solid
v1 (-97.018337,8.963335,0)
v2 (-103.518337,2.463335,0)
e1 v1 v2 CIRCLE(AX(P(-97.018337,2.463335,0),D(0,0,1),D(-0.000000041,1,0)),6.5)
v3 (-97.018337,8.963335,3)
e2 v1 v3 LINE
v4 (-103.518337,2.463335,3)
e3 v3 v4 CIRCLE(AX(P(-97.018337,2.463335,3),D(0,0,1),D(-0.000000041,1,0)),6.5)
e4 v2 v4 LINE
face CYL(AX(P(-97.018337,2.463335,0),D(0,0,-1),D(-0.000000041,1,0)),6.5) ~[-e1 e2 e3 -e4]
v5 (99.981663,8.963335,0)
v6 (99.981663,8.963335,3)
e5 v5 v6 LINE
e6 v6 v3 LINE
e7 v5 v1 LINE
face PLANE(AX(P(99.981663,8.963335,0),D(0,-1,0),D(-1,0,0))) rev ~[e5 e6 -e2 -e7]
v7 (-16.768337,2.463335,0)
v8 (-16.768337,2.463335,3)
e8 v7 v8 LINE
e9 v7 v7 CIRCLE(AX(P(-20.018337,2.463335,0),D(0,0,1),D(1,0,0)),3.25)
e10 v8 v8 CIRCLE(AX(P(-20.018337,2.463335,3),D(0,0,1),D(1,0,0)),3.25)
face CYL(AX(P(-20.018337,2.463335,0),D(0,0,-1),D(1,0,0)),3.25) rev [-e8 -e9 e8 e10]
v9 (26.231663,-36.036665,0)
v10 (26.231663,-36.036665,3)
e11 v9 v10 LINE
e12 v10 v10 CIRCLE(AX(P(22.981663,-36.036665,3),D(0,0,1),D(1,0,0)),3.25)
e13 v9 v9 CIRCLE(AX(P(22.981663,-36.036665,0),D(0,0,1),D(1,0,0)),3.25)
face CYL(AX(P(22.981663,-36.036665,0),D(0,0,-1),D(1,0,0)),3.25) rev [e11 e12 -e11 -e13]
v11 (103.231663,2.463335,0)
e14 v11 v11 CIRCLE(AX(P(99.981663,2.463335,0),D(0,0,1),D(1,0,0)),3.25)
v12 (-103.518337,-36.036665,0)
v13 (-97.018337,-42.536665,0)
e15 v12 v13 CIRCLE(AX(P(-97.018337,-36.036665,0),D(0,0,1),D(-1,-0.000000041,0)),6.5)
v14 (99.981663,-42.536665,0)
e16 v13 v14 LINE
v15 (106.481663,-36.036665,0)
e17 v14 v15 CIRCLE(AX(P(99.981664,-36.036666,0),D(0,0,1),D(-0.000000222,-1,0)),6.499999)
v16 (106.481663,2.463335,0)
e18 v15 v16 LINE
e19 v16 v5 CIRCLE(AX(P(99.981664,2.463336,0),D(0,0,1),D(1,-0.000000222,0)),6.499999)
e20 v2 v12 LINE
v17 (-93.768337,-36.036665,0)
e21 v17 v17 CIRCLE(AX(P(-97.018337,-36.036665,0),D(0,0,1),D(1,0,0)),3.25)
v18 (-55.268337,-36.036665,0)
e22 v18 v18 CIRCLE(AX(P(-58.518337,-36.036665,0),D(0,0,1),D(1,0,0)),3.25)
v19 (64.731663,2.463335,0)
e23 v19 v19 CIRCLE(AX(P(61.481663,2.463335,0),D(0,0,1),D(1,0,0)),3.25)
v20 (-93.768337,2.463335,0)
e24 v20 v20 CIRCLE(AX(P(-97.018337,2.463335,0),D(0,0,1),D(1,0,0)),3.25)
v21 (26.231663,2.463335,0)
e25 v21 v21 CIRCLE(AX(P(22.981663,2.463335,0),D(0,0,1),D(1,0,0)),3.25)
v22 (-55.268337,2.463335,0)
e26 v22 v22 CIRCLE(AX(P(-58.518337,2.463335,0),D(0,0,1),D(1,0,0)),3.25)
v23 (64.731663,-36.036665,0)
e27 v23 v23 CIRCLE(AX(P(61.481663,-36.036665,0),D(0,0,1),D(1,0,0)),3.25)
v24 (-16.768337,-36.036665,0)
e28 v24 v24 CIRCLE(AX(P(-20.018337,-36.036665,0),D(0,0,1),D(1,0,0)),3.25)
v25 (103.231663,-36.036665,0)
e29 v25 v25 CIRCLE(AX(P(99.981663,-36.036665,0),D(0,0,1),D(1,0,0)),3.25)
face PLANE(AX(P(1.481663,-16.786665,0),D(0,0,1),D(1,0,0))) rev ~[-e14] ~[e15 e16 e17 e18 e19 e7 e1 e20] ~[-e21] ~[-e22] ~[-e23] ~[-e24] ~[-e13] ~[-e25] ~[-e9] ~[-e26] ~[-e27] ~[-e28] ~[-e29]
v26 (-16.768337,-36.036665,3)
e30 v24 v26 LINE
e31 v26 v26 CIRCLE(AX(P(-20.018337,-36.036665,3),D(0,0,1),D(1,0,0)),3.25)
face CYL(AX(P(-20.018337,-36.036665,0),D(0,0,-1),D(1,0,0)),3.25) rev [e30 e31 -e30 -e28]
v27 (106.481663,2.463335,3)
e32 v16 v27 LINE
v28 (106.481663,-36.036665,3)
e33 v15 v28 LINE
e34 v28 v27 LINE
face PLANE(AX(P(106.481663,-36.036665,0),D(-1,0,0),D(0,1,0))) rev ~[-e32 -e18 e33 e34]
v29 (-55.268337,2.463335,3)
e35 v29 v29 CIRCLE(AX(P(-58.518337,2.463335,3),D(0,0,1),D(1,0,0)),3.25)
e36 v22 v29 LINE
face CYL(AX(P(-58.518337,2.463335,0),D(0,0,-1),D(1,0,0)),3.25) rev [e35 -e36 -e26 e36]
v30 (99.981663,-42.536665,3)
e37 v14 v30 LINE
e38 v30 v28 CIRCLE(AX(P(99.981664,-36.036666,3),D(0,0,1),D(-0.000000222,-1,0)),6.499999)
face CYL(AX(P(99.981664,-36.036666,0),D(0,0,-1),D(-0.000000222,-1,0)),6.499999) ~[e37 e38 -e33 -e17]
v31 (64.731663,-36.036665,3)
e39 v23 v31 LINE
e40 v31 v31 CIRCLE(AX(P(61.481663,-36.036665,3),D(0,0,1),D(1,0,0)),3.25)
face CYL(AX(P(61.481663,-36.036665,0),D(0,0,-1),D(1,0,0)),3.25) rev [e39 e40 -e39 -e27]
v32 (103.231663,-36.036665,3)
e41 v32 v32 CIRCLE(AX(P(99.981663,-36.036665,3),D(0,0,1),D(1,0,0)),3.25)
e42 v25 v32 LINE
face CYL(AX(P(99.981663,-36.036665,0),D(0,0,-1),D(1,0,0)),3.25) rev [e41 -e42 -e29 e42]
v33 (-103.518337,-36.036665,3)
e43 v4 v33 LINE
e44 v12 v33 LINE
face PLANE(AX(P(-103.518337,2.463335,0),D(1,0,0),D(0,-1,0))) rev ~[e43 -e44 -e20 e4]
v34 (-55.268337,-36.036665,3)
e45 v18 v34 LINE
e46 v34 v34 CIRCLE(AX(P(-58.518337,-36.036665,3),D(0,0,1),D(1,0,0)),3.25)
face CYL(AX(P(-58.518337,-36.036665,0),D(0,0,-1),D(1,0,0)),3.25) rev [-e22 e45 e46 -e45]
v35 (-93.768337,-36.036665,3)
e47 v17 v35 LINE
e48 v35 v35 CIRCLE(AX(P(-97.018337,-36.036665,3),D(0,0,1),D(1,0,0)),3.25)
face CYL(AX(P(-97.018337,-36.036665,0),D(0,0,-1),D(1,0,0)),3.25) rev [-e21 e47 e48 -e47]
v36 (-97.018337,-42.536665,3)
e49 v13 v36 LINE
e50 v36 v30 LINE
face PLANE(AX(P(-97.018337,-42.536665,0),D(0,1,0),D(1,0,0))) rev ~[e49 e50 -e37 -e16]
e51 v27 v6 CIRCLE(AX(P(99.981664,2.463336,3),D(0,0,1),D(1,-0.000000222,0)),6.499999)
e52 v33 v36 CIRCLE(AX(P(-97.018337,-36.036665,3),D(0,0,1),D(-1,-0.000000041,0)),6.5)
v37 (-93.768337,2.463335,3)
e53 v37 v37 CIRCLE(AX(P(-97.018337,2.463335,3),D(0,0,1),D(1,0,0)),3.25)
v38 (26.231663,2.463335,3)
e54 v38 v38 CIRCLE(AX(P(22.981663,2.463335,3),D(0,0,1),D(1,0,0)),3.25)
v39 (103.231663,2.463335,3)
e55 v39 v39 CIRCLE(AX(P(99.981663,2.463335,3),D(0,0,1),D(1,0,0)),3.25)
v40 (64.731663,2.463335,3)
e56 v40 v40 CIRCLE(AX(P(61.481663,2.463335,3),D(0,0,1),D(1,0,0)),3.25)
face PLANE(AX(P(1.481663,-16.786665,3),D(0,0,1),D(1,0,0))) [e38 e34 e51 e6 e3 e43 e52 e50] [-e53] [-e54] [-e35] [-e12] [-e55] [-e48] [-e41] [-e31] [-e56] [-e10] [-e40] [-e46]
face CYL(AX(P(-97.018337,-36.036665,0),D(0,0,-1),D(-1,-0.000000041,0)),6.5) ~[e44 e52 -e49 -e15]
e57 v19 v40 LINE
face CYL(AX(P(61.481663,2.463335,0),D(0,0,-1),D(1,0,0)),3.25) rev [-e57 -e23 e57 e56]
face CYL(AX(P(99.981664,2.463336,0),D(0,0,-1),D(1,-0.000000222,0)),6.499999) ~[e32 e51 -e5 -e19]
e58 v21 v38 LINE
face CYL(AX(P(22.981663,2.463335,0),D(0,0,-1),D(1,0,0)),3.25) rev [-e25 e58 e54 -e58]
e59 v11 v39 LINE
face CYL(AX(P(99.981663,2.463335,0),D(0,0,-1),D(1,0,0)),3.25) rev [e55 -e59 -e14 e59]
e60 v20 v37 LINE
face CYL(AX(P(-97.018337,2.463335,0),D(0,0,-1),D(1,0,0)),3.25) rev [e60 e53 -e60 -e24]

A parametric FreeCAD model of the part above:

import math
import FreeCAD as App
import Part
import Sketcher

V = App.Vector

doc = App.newDocument("Part")
body = doc.addObject("PartDesign::Body", "Body")

sketch1 = body.newObject("Sketcher::SketchObject", "Sketch")
sketch1.AttachmentSupport = (doc.getObject("XY_Plane"), [""])
sketch1.MapMode = "FlatFace"
sketch1.addGeometry(Part.LineSegment(V(100, 9, 0), V(-97, 9, 0)), False)
sketch1.addGeometry(Part.ArcOfCircle(Part.Circle(V(-97, 2.5, 0), V(0, 0, 1), 6.5), math.radians(90), math.radians(180)), False)
sketch1.addGeometry(Part.LineSegment(V(-103.5, 2.5, 0), V(-103.5, -36, 0)), False)
sketch1.addGeometry(Part.ArcOfCircle(Part.Circle(V(-97, -36, 0), V(0, 0, 1), 6.5), math.radians(-180), math.radians(-90)), False)
sketch1.addGeometry(Part.LineSegment(V(-97, -42.5, 0), V(100, -42.5, 0)), False)
sketch1.addGeometry(Part.ArcOfCircle(Part.Circle(V(100, -36, 0), V(0, 0, 1), 6.5), math.radians(-90), math.radians(0)), False)
sketch1.addGeometry(Part.LineSegment(V(106.5, -36, 0), V(106.5, 2.5, 0)), False)
sketch1.addGeometry(Part.ArcOfCircle(Part.Circle(V(100, 2.5, 0), V(0, 0, 1), 6.5), math.radians(0), math.radians(90)), False)
sketch1.addGeometry(Part.Circle(V(-97, -36, 0), V(0, 0, 1), 3.2), False)
sketch1.addGeometry(Part.Circle(V(-58.5, -36, 0), V(0, 0, 1), 3.2), False)
sketch1.addGeometry(Part.Circle(V(-20, -36, 0), V(0, 0, 1), 3.2), False)
sketch1.addGeometry(Part.Circle(V(23, -36, 0), V(0, 0, 1), 3.2), False)
sketch1.addGeometry(Part.Circle(V(61.5, -36, 0), V(0, 0, 1), 3.2), False)
sketch1.addGeometry(Part.Circle(V(100, -36, 0), V(0, 0, 1), 3.2), False)
sketch1.addGeometry(Part.Circle(V(-97, 2.5, 0), V(0, 0, 1), 3.2), False)
sketch1.addGeometry(Part.Circle(V(-58.5, 2.5, 0), V(0, 0, 1), 3.2), False)
sketch1.addGeometry(Part.Circle(V(-20, 2.5, 0), V(0, 0, 1), 3.2), False)
sketch1.addGeometry(Part.Circle(V(23, 2.5, 0), V(0, 0, 1), 3.2), False)
sketch1.addGeometry(Part.Circle(V(61.5, 2.5, 0), V(0, 0, 1), 3.2), False)
sketch1.addGeometry(Part.Circle(V(100, 2.5, 0), V(0, 0, 1), 3.2), False)
sketch1.addConstraint(Sketcher.Constraint("Tangent", 0, 2, 1, 1))
sketch1.addConstraint(Sketcher.Constraint("Tangent", 1, 2, 2, 1))
sketch1.addConstraint(Sketcher.Constraint("Tangent", 2, 2, 3, 1))
sketch1.addConstraint(Sketcher.Constraint("Tangent", 3, 2, 4, 1))
sketch1.addConstraint(Sketcher.Constraint("Tangent", 4, 2, 5, 1))
sketch1.addConstraint(Sketcher.Constraint("Tangent", 5, 2, 6, 1))
sketch1.addConstraint(Sketcher.Constraint("Tangent", 6, 2, 7, 1))
sketch1.addConstraint(Sketcher.Constraint("Tangent", 7, 2, 0, 1))
sketch1.addConstraint(Sketcher.Constraint("Horizontal", 0))
sketch1.addConstraint(Sketcher.Constraint("Vertical", 2))
sketch1.addConstraint(Sketcher.Constraint("Horizontal", 4))
sketch1.addConstraint(Sketcher.Constraint("Vertical", 6))
sketch1.addConstraint(Sketcher.Constraint("Coincident", 8, 3, 3, 3))
sketch1.addConstraint(Sketcher.Constraint("Coincident", 13, 3, 5, 3))
sketch1.addConstraint(Sketcher.Constraint("Coincident", 14, 3, 1, 3))
sketch1.addConstraint(Sketcher.Constraint("Coincident", 19, 3, 7, 3))
sketch1.addConstraint(Sketcher.Constraint("Equal", 1, 3))
sketch1.addConstraint(Sketcher.Constraint("Equal", 3, 5))
sketch1.addConstraint(Sketcher.Constraint("Equal", 5, 7))
sketch1.addConstraint(Sketcher.Constraint("Equal", 8, 9))
sketch1.addConstraint(Sketcher.Constraint("Equal", 9, 10))
sketch1.addConstraint(Sketcher.Constraint("Equal", 10, 11))
sketch1.addConstraint(Sketcher.Constraint("Equal", 11, 12))
sketch1.addConstraint(Sketcher.Constraint("Equal", 12, 13))
sketch1.addConstraint(Sketcher.Constraint("Equal", 13, 14))
sketch1.addConstraint(Sketcher.Constraint("Equal", 14, 15))
sketch1.addConstraint(Sketcher.Constraint("Equal", 15, 16))
sketch1.addConstraint(Sketcher.Constraint("Equal", 16, 17))
sketch1.addConstraint(Sketcher.Constraint("Equal", 17, 18))
sketch1.addConstraint(Sketcher.Constraint("Equal", 18, 19))
sketch1.addConstraint(Sketcher.Constraint("Horizontal", 8, 3, 9, 3))
sketch1.addConstraint(Sketcher.Constraint("Horizontal", 9, 3, 10, 3))
sketch1.addConstraint(Sketcher.Constraint("Horizontal", 10, 3, 11, 3))
sketch1.addConstraint(Sketcher.Constraint("Horizontal", 11, 3, 12, 3))
sketch1.addConstraint(Sketcher.Constraint("Horizontal", 14, 3, 15, 3))
sketch1.addConstraint(Sketcher.Constraint("Horizontal", 15, 3, 16, 3))
sketch1.addConstraint(Sketcher.Constraint("Horizontal", 16, 3, 17, 3))
sketch1.addConstraint(Sketcher.Constraint("Horizontal", 17, 3, 18, 3))
sketch1.addConstraint(Sketcher.Constraint("Vertical", 9, 3, 15, 3))
sketch1.addConstraint(Sketcher.Constraint("Vertical", 10, 3, 16, 3))
sketch1.addConstraint(Sketcher.Constraint("Vertical", 11, 3, 17, 3))
sketch1.addConstraint(Sketcher.Constraint("Vertical", 12, 3, 18, 3))
sketch1.addConstraint(Sketcher.Constraint("Diameter", 8, 6.5))
sketch1.addConstraint(Sketcher.Constraint("Radius", 1, 6.5))
sketch1.addConstraint(Sketcher.Constraint("DistanceX", 0, 2, 0, 1, 197.0))
sketch1.addConstraint(Sketcher.Constraint("DistanceY", 2, 2, 2, 1, 38.5))
sketch1.addConstraint(Sketcher.Constraint("DistanceX", 3, 3, 10, 3, 77.0))
sketch1.addConstraint(Sketcher.Constraint("DistanceX", 10, 3, 11, 3, 43.0))
sketch1.addConstraint(Sketcher.Constraint("DistanceX", 9, 3, 12, 3, 120.0))
sketch1.addConstraint(Sketcher.Constraint("DistanceX", 3, 3, 9, 3, 38.5))
sketch1.addConstraint(Sketcher.Constraint("DistanceX", 1, 3, -1, 1, 97.018337))
sketch1.addConstraint(Sketcher.Constraint("DistanceY", -1, 1, 1, 3, 2.463335))
pad1 = body.newObject("PartDesign::Pad", "Pad")
pad1.Profile = sketch1
pad1.Length = 3

doc.recompute()
